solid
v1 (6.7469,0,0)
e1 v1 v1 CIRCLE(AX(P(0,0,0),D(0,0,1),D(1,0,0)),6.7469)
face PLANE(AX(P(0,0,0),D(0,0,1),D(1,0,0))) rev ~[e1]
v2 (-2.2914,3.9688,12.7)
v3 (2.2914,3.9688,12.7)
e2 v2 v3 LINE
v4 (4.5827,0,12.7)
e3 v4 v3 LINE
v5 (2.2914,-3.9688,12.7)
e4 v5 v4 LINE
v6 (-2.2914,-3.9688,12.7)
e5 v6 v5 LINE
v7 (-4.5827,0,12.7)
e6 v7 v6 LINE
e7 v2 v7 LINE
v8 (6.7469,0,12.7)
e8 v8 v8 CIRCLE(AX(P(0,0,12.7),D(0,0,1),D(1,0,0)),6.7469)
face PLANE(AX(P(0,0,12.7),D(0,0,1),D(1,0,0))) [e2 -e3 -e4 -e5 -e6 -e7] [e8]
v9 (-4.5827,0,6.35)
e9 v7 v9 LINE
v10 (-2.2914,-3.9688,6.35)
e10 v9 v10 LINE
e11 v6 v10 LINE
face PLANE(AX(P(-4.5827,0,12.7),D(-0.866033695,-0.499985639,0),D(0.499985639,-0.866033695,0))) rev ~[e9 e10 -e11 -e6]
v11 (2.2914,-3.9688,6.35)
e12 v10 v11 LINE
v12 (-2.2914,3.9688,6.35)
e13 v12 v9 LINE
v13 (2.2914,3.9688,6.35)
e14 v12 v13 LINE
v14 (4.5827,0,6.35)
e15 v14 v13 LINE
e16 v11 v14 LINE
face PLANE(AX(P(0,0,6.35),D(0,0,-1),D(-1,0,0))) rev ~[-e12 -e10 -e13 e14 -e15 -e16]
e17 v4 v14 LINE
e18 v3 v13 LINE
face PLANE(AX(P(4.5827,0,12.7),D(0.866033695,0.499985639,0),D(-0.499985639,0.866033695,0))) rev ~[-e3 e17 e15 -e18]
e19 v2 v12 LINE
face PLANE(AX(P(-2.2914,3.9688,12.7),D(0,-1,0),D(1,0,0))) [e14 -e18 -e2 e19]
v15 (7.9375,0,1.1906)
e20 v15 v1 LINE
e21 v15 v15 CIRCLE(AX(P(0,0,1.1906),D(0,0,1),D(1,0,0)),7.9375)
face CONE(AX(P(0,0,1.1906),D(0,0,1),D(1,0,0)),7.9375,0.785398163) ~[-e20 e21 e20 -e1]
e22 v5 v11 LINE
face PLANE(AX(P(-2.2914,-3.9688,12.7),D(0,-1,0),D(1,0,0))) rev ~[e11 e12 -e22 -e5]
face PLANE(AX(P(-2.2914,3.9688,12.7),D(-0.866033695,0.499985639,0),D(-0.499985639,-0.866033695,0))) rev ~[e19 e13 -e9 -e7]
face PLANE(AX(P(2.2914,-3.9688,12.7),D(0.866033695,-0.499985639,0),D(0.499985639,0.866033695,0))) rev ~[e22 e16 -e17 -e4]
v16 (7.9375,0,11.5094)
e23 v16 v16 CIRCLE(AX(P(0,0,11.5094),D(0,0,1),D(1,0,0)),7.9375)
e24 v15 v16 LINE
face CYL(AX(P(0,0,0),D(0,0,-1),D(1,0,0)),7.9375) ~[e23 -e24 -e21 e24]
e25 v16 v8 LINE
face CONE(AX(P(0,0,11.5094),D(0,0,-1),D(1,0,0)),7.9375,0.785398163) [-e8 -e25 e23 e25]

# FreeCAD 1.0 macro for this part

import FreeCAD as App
import Part
import Sketcher
from FreeCAD import Vector
Q = App.Units.Quantity


def edges_at(feature, points):
    """Names of the edges that pass closest to the given points."""
    edges = feature.Shape.Edges
    near = lambda p: min(range(len(edges)), key=lambda i: edges[i].distToShape(Part.Vertex(*p))[0])
    return sorted({f"Edge{near(p) + 1}" for p in points})


def add_polygon(sketch, points):
    """Adds a closed chain of lines whose ends are joined by coincident constraints."""
    first, n = sketch.GeometryCount, len(points)
    for a, b in zip(points, points[1:] + points[:1]):
        sketch.addGeometry(Part.LineSegment(App.Vector(*a, 0), App.Vector(*b, 0)), False)
    for i in range(n):
        sketch.addConstraint(Sketcher.Constraint("Coincident", first + i, 2, first + (i + 1) % n, 1))

doc = App.newDocument("Part")
body = doc.addObject("PartDesign::Body", "Body")

# Sketch on XY plane
sketch1 = body.newObject("Sketcher::SketchObject", "Sketch")
sketch1.AttachmentSupport = (doc.getObject("XY_Plane"), [""])
sketch1.MapMode = "FlatFace"
sketch1.addGeometry(Part.Circle(Vector(0, 0, 0), Vector(0, 0, 1), 7.9375), False)
sketch1.addConstraint([
    Sketcher.Constraint("Coincident", 0, 3, -1, 1),
    Sketcher.Constraint("Diameter", 0, Q("0.625 in")),
])
pad1 = body.newObject("PartDesign::Pad", "Pad")
pad1.Profile = sketch1
pad1.Length = Q("0.5 in")
doc.recompute()

chamfer = body.newObject("PartDesign::Chamfer", "Chamfer")
chamfer.Base = (pad1, edges_at(pad1, [(-7.938, 0, 0), (-7.938, 0, 12.7)]))
chamfer.Size = Q("0.046874 in")

# Sketch on XY plane
sketch2 = body.newObject("Sketcher::SketchObject", "Sketch001")
sketch2.AttachmentSupport = (doc.getObject("XY_Plane"), [""])
sketch2.MapMode = "FlatFace"
sketch2.AttachmentOffset = App.Placement(Vector(0, 0, 0.5 * 25.4), App.Rotation())
add_polygon(sketch2, [(2.2914, 3.9688), (-2.2914, 3.9688), (-4.5827, 0), (-2.2914, -3.9688), (2.2914, -3.9688), (4.5827, 0)])  # lines 0-5
sketch2.addConstraint([
    Sketcher.Constraint("Horizontal", 0),
    Sketcher.Constraint("Horizontal", 3),
    Sketcher.Constraint("Symmetric", 0, 2, 3, 2, -1, 1),
    Sketcher.Constraint("Symmetric", 1, 2, 4, 2, -1, 1),
    Sketcher.Constraint("PointOnObject", 1, 2, -1),
    Sketcher.Constraint("Parallel", 2, 5),
    Sketcher.Constraint("Vertical", 0, 2, 2, 2),
    Sketcher.Constraint("Angle", 1, Q("-119.999 deg")),
    Sketcher.Constraint("DistanceY", -1, 1, 0, 2, Q("0.156252 in")),
    Sketcher.Constraint("DistanceX", 0, 2, 0, 1, 4.5828),
])
pocket1 = body.newObject("PartDesign::Pocket", "Pocket")
pocket1.Profile = sketch2
pocket1.Length = Q("0.25 in")

doc.recompute()
